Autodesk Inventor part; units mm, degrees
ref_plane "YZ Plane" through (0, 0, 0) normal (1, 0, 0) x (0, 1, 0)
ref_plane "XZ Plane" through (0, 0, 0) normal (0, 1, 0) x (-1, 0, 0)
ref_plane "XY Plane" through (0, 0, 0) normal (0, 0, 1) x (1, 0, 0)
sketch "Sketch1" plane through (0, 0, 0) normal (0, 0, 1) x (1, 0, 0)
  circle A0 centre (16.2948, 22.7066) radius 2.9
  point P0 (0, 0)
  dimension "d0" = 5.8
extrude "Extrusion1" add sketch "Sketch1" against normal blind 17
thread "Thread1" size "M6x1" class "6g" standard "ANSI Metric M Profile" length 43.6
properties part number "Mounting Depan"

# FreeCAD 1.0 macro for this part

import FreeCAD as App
import Part
import Sketcher
from FreeCAD import Vector
Q = App.Units.Quantity

doc = App.newDocument("Part")
body = doc.addObject("PartDesign::Body", "Body")

sketch1 = doc.addObject("Sketcher::SketchObject", "Sketch")
body.addObject(sketch1)
sketch1.AttachmentSupport = (doc.XY_Plane, [""])
sketch1.MapMode = "FlatFace"
sketch1.addGeometry(Part.Circle(Vector(16.3, 22.7, 0), Vector(0, 0, 1), 2.9), False)
sketch1.addConstraint([
    Sketcher.Constraint("Diameter", 0, Q("5.8 mm")),
    Sketcher.Constraint("DistanceX", -1, 1, 0, 3, Q("16.2948 mm")),
    Sketcher.Constraint("DistanceY", -1, 1, 0, 3, Q("22.7066 mm")),
])
pad1 = doc.addObject("PartDesign::Pad", "Pad")
body.addObject(pad1)
pad1.Profile = sketch1
pad1.Length = 17
pad1.Reversed = True

doc.recompute()
